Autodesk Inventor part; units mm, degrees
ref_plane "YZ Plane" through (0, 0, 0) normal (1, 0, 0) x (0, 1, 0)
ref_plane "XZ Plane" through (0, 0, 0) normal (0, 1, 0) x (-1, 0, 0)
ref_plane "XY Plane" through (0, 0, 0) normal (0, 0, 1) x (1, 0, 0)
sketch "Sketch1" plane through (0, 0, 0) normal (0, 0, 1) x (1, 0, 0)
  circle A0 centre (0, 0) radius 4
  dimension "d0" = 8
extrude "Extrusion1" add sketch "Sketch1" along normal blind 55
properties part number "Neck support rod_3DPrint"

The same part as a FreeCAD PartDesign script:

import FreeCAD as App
import Part
import Sketcher
Q = App.Units.Quantity

doc = App.newDocument("Part")
body = doc.addObject("PartDesign::Body", "Body")

sketch1 = body.newObject("Sketcher::SketchObject", "Sketch")
sketch1.AttachmentSupport = (doc.getObject("XY_Plane"), [""])
sketch1.MapMode = "FlatFace"
sketch1.addGeometry(Part.Circle(App.Vector(0, 0, 0), App.Vector(0, 0, 1), 4), False)
sketch1.addConstraint([
    Sketcher.Constraint("Coincident", 0, 3, -1, 1),
    Sketcher.Constraint("Diameter", 0, Q("8 mm")),
])
pad1 = body.newObject("PartDesign::Pad", "Pad")
pad1.Profile = sketch1
pad1.Length = 55

doc.recompute()
